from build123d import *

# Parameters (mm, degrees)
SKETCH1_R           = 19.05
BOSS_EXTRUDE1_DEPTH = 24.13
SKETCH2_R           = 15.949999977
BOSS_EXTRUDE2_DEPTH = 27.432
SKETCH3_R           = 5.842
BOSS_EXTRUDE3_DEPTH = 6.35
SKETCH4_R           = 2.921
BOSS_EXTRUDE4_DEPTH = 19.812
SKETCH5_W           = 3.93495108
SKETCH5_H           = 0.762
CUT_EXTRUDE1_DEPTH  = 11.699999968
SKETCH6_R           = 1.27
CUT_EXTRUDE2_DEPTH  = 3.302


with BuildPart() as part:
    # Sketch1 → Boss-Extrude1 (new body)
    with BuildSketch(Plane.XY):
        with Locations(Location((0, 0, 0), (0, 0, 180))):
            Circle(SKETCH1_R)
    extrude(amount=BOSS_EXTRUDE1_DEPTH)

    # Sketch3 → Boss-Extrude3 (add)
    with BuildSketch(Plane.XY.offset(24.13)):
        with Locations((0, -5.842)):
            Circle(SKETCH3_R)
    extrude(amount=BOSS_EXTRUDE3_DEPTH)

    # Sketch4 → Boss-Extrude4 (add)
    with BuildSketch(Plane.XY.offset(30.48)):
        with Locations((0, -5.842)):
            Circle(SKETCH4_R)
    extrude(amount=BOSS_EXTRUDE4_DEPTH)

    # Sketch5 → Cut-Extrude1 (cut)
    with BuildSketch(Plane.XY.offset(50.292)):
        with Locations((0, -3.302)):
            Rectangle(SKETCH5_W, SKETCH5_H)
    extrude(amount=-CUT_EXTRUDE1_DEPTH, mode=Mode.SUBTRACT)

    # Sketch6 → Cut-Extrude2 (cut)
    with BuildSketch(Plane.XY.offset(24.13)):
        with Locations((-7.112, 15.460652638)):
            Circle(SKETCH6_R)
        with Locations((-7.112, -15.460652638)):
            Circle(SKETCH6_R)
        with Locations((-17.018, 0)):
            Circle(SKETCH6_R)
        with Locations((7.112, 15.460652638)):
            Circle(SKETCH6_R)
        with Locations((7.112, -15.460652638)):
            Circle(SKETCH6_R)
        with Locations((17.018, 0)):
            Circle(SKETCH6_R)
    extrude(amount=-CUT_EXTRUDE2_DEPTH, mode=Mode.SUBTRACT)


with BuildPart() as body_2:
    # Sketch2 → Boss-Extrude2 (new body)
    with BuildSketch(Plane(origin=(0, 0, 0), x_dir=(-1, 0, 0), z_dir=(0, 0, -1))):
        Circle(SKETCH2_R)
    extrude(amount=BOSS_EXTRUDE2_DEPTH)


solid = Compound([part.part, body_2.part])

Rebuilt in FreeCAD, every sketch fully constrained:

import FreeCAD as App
import Part
import Sketcher

V = App.Vector
Q = App.Units.Quantity

doc = App.newDocument("Part")
body = doc.addObject("PartDesign::Body", "Body")

# Sketch on XY plane
sketch1 = body.newObject("Sketcher::SketchObject", "Sketch")
sketch1.AttachmentSupport = (doc.getObject("XY_Plane"), [""])
sketch1.MapMode = "FlatFace"
sketch1.addGeometry(Part.Circle(V(0, 0, 0), V(0, 0, 1), 19), False)
sketch1.addConstraint(Sketcher.Constraint("Coincident", 0, 3, -1, 1))
sketch1.addConstraint(Sketcher.Constraint("Diameter", 0, Q("1.5 in")))
pad1 = body.newObject("PartDesign::Pad", "Pad")
pad1.Profile = sketch1
pad1.Length = Q("0.95 in")

# Sketch on XY plane
sketch2 = body.newObject("Sketcher::SketchObject", "Sketch001")
sketch2.AttachmentSupport = (doc.getObject("XY_Plane"), [""])
sketch2.MapMode = "FlatFace"
sketch2.AttachmentOffset = App.Placement(V(0, 0, 0.95 * 25.4), App.Rotation())
sketch2.addGeometry(Part.Circle(V(0, -6, 0), V(0, 0, 1), 6), False)
sketch2.addConstraint(Sketcher.Constraint("PointOnObject", 0, 3, -2))
sketch2.addConstraint(Sketcher.Constraint("Diameter", 0, Q("0.46 in")))
sketch2.addConstraint(Sketcher.Constraint("DistanceY", 0, 3, -1, 1, Q("0.23 in")))
pad2 = body.newObject("PartDesign::Pad", "Pad001")
pad2.Profile = sketch2
pad2.Length = Q("0.25 in")

# Sketch on XY plane
sketch3 = body.newObject("Sketcher::SketchObject", "Sketch002")
sketch3.AttachmentSupport = (doc.getObject("XY_Plane"), [""])
sketch3.MapMode = "FlatFace"
sketch3.AttachmentOffset = App.Placement(V(0, 0, 1.2 * 25.4), App.Rotation())
sketch3.addGeometry(Part.Circle(V(0, -5.8, 0), V(0, 0, 1), 2.9), False)
sketch3.addConstraint(Sketcher.Constraint("PointOnObject", 0, 3, -2))
sketch3.addConstraint(Sketcher.Constraint("Diameter", 0, Q("0.23 in")))
sketch3.addConstraint(Sketcher.Constraint("DistanceY", 0, 3, -1, 1, Q("0.23 in")))
pad3 = body.newObject("PartDesign::Pad", "Pad002")
pad3.Profile = sketch3
pad3.Length = Q("0.78 in")

# Sketch on XY plane
sketch4 = body.newObject("Sketcher::SketchObject", "Sketch003")
sketch4.AttachmentSupport = (doc.getObject("XY_Plane"), [""])
sketch4.MapMode = "FlatFace"
sketch4.AttachmentOffset = App.Placement(V(0, 0, 1.98 * 25.4), App.Rotation())
sketch4.addGeometry(Part.LineSegment(V(-2, -2.9, 0), V(-2, -3.7, 0)), False)
sketch4.addGeometry(Part.LineSegment(V(-2, -3.7, 0), V(2, -3.7, 0)), False)
sketch4.addGeometry(Part.LineSegment(V(2, -3.7, 0), V(2, -2.9, 0)), False)
sketch4.addGeometry(Part.LineSegment(V(2, -2.9, 0), V(-2, -2.9, 0)), False)
sketch4.addConstraint(Sketcher.Constraint("Coincident", 0, 2, 1, 1))
sketch4.addConstraint(Sketcher.Constraint("Coincident", 1, 2, 2, 1))
sketch4.addConstraint(Sketcher.Constraint("Coincident", 2, 2, 3, 1))
sketch4.addConstraint(Sketcher.Constraint("Coincident", 3, 2, 0, 1))
sketch4.addConstraint(Sketcher.Constraint("Vertical", 0))
sketch4.addConstraint(Sketcher.Constraint("Horizontal", 1))
sketch4.addConstraint(Sketcher.Constraint("Vertical", 2))
sketch4.addConstraint(Sketcher.Constraint("Horizontal", 3))
sketch4.addConstraint(Sketcher.Constraint("DistanceY", 0, 2, 0, 1, Q("0.03 in")))
sketch4.addConstraint(Sketcher.Constraint("DistanceY", 0, 2, -1, 1, Q("0.145 in")))
sketch4.addConstraint(Sketcher.Constraint("DistanceX", 1, 1, 1, 2, 3.934951))
sketch4.addConstraint(Sketcher.Constraint("DistanceX", 0, 2, -1, 1, 1.967476))
pocket1 = body.newObject("PartDesign::Pocket", "Pocket")
pocket1.Profile = sketch4
pocket1.Length = 11.7

# Sketch on XY plane
sketch5 = body.newObject("Sketcher::SketchObject", "Sketch004")
sketch5.AttachmentSupport = (doc.getObject("XY_Plane"), [""])
sketch5.MapMode = "FlatFace"
sketch5.AttachmentOffset = App.Placement(V(0, 0, 0.95 * 25.4), App.Rotation())
sketch5.addGeometry(Part.Circle(V(-7.1, 15.5, 0), V(0, 0, 1), 1.3), False)
sketch5.addGeometry(Part.Circle(V(-7.1, -15.5, 0), V(0, 0, 1), 1.3), False)
sketch5.addGeometry(Part.Circle(V(-17, 0, 0), V(0, 0, 1), 1.3), False)
sketch5.addGeometry(Part.Circle(V(7.1, 15.5, 0), V(0, 0, 1), 1.3), False)
sketch5.addGeometry(Part.Circle(V(7.1, -15.5, 0), V(0, 0, 1), 1.3), False)
sketch5.addGeometry(Part.Circle(V(17, 0, 0), V(0, 0, 1), 1.3), False)
sketch5.addConstraint(Sketcher.Constraint("Equal", 0, 1))
sketch5.addConstraint(Sketcher.Constraint("Equal", 1, 2))
sketch5.addConstraint(Sketcher.Constraint("Equal", 2, 3))
sketch5.addConstraint(Sketcher.Constraint("Equal", 3, 4))
sketch5.addConstraint(Sketcher.Constraint("Equal", 4, 5))
sketch5.addConstraint(Sketcher.Constraint("Symmetric", 1, 3, 3, 3, -1, 1))
sketch5.addConstraint(Sketcher.Constraint("Symmetric", 0, 3, 4, 3, -1, 1))
sketch5.addConstraint(Sketcher.Constraint("Symmetric", 2, 3, 5, 3, -1, 1))
sketch5.addConstraint(Sketcher.Constraint("Symmetric", 0, 3, 3, 3, -2))
sketch5.addConstraint(Sketcher.Constraint("PointOnObject", 2, 3, -1))
sketch5.addConstraint(Sketcher.Constraint("Diameter", 0, Q("0.1 in")))
sketch5.addConstraint(Sketcher.Constraint("DistanceX", 0, 3, -1, 1, Q("0.28 in")))
sketch5.addConstraint(Sketcher.Constraint("DistanceX", 2, 3, -1, 1, Q("0.67 in")))
sketch5.addConstraint(Sketcher.Constraint("DistanceY", -1, 1, 0, 3, 15.460653))
pocket2 = body.newObject("PartDesign::Pocket", "Pocket001")
pocket2.Profile = sketch5
pocket2.Length = Q("0.13 in")
body2 = doc.addObject("PartDesign::Body", "Body001")

# Sketch on XY plane
sketch6 = body2.newObject("Sketcher::SketchObject", "Sketch005")
sketch6.AttachmentSupport = (doc.getObject("XY_Plane001"), [""])
sketch6.MapMode = "FlatFace"
sketch6.addGeometry(Part.Circle(V(0, 0, 0), V(0, 0, 1), 16), False)
sketch6.addConstraint(Sketcher.Constraint("Coincident", 0, 3, -1, 1))
sketch6.addConstraint(Sketcher.Constraint("Diameter", 0, 31.9))
pad4 = body2.newObject("PartDesign::Pad", "Pad003")
pad4.Profile = sketch6
pad4.Length = Q("1.08 in")
pad4.Reversed = True

doc.recompute()
